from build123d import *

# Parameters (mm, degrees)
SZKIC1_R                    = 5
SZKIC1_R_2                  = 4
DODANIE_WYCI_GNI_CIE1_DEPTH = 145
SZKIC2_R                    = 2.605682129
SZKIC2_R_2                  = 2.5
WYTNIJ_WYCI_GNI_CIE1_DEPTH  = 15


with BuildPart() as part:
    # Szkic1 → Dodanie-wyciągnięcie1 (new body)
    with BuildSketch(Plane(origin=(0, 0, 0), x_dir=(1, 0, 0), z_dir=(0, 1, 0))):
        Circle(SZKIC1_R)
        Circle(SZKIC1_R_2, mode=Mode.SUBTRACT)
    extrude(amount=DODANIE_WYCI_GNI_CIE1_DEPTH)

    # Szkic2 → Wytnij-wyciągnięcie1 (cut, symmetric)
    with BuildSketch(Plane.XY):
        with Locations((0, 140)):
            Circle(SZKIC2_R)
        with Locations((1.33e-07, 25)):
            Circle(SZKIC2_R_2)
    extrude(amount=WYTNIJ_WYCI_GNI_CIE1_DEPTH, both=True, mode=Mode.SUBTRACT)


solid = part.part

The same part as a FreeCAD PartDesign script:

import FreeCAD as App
import Part
import Sketcher
from FreeCAD import Vector
Q = App.Units.Quantity

doc = App.newDocument("Part")
params = doc.addObject("Spreadsheet::Sheet", "Params")
for row, (alias, value) in enumerate([
    ("sketch1_diameter", "10 mm"),
    ("sketch1_diameter2", "8 mm"),
    ("pad1_length", "145 mm"),
    ("sketch2_diameter", "5 mm"),
    ("pocket1_length", "30 mm"),
], start=1):
    params.set(f"A{row}", alias)
    params.set(f"B{row}", "=" + value)
    params.setAlias(f"B{row}", alias)

body = doc.addObject("PartDesign::Body", "Body")

sketch1 = body.newObject("Sketcher::SketchObject", "Sketch")
sketch1.AttachmentSupport = (doc.getObject("XZ_Plane"), [""])
sketch1.MapMode = "FlatFace"
sketch1.addGeometry([
    Part.Circle(Vector(0, 0, 0), Vector(0, 0, 1), 5),
    Part.Circle(Vector(0, 0, 0), Vector(0, 0, 1), 4),
], False)
sketch1.addConstraint([
    Sketcher.Constraint("Coincident", 0, 3, -1, 1),
    Sketcher.Constraint("Coincident", 1, 3, -1, 1),
    Sketcher.Constraint("Diameter", 0, Q("10 mm")),
    Sketcher.Constraint("Diameter", 1, Q("8 mm")),
])
sketch1.setExpression("Constraints[2]", "Params.sketch1_diameter")
sketch1.setExpression("Constraints[3]", "Params.sketch1_diameter2")
pad1 = body.newObject("PartDesign::Pad", "Pad")
pad1.Profile = sketch1
pad1.setExpression("Length", "Params.pad1_length")
pad1.Reversed = True

sketch2 = body.newObject("Sketcher::SketchObject", "Sketch001")
sketch2.AttachmentSupport = (doc.getObject("XY_Plane"), [""])
sketch2.MapMode = "FlatFace"
sketch2.addGeometry([
    Part.Circle(Vector(0, 140, 0), Vector(0, 0, 1), 2.6),
    Part.Circle(Vector(0, 25, 0), Vector(0, 0, 1), 2.5),
], False)
sketch2.addConstraint([
    Sketcher.Constraint("PointOnObject", 0, 3, -2),
    Sketcher.Constraint("PointOnObject", 1, 3, -2),
    Sketcher.Constraint("Diameter", 1, Q("5 mm")),
    Sketcher.Constraint("DistanceY", -1, 1, 0, 3, Q("140 mm")),
    Sketcher.Constraint("DistanceY", -1, 1, 1, 3, Q("25 mm")),
    Sketcher.Constraint("Diameter", 0, Q("5.211364 mm")),
])
sketch2.setExpression("Constraints[2]", "Params.sketch2_diameter")
pocket1 = body.newObject("PartDesign::Pocket", "Pocket")
pocket1.Profile = sketch2
pocket1.setExpression("Length", "Params.pocket1_length")
pocket1.Midplane = True

doc.recompute()
